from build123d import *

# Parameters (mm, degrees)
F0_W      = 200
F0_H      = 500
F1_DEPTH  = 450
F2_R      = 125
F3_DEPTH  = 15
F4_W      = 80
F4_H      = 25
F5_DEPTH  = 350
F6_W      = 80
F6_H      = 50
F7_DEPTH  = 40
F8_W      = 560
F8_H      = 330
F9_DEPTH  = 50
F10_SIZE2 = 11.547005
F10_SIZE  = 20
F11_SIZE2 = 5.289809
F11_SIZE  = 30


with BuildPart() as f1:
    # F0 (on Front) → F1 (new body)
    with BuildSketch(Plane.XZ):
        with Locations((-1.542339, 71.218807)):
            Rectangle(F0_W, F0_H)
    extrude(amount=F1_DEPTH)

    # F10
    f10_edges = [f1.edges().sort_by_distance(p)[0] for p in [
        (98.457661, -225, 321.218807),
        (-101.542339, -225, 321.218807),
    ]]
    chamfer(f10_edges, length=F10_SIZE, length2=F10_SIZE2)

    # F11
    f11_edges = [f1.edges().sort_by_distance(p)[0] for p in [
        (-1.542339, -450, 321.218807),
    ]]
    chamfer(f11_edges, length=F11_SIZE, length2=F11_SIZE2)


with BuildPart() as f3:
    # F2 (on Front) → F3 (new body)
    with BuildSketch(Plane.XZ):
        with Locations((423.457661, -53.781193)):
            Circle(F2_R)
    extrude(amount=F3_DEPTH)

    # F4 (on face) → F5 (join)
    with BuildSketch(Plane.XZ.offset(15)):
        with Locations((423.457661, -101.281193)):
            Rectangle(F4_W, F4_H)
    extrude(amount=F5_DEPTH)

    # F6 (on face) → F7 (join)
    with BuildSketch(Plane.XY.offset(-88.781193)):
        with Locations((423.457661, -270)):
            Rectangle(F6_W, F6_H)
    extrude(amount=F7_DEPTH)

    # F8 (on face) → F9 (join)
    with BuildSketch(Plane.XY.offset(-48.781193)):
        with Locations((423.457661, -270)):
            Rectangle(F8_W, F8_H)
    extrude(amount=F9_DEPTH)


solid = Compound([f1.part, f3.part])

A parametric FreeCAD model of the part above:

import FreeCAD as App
import Part
import Sketcher
Q = App.Units.Quantity


def edges_at(feature, points):
    """Names of the edges that pass closest to the given points."""
    edges = feature.Shape.Edges
    near = lambda p: min(range(len(edges)), key=lambda i: edges[i].distToShape(Part.Vertex(*p))[0])
    return sorted({f"Edge{near(p) + 1}" for p in points})

doc = App.newDocument("Part")
body = doc.addObject("PartDesign::Body", "Body")

# Sketch on XZ plane
sketch1 = body.newObject("Sketcher::SketchObject", "Sketch")
sketch1.AttachmentSupport = (doc.getObject("XZ_Plane"), [""])
sketch1.MapMode = "FlatFace"
sketch1.addGeometry([
    Part.LineSegment(App.Vector(-102, 321, 0), App.Vector(-102, -179, 0)),
    Part.LineSegment(App.Vector(-102, -179, 0), App.Vector(98, -179, 0)),
    Part.LineSegment(App.Vector(98, -179, 0), App.Vector(98, 321, 0)),
    Part.LineSegment(App.Vector(98, 321, 0), App.Vector(-102, 321, 0)),
], False)
sketch1.addConstraint([
    Sketcher.Constraint("Coincident", 0, 2, 1, 1),
    Sketcher.Constraint("Coincident", 1, 2, 2, 1),
    Sketcher.Constraint("Coincident", 2, 2, 3, 1),
    Sketcher.Constraint("Coincident", 3, 2, 0, 1),
    Sketcher.Constraint("Vertical", 0),
    Sketcher.Constraint("Horizontal", 1),
    Sketcher.Constraint("Vertical", 2),
    Sketcher.Constraint("Horizontal", 3),
    Sketcher.Constraint("DistanceX", 1, 1, 1, 2, Q("200 mm")),
    Sketcher.Constraint("DistanceY", 0, 2, 0, 1, Q("500 mm")),
    Sketcher.Constraint("DistanceX", 0, 2, -1, 1, Q("101.542339 mm")),
    Sketcher.Constraint("DistanceY", 0, 2, -1, 1, Q("178.781193 mm")),
])
pad1 = body.newObject("PartDesign::Pad", "Pad")
pad1.Profile = sketch1
pad1.Length = 450
doc.recompute()

chamfer = body.newObject("PartDesign::Chamfer", "Chamfer")
chamfer.Base = (pad1, edges_at(pad1, [(98.458, -225, 321.219), (-101.542, -225, 321.219)]))
chamfer.ChamferType = "Two distances"
chamfer.Size = 20
chamfer.Size2 = 11.547005
doc.recompute()

chamfer2 = body.newObject("PartDesign::Chamfer", "Chamfer001")
chamfer2.Base = (chamfer, edges_at(chamfer, [(-1.542, -450, 321.219)]))
chamfer2.ChamferType = "Two distances"
chamfer2.Size = 30
chamfer2.Size2 = 5.289809
body2 = doc.addObject("PartDesign::Body", "Body001")

# Sketch on XZ plane
sketch2 = body2.newObject("Sketcher::SketchObject", "Sketch001")
sketch2.AttachmentSupport = (doc.getObject("XZ_Plane001"), [""])
sketch2.MapMode = "FlatFace"
sketch2.addGeometry(Part.Circle(App.Vector(423, -54, 0), App.Vector(0, 0, 1), 125), False)
sketch2.addConstraint([
    Sketcher.Constraint("Diameter", 0, Q("250 mm")),
    Sketcher.Constraint("DistanceX", -1, 1, 0, 3, Q("423.457661 mm")),
    Sketcher.Constraint("DistanceY", 0, 3, -1, 1, Q("53.781193 mm")),
])
pad2 = body2.newObject("PartDesign::Pad", "Pad001")
pad2.Profile = sketch2
pad2.Length = 15

# Sketch on XZ plane
sketch3 = body2.newObject("Sketcher::SketchObject", "Sketch002")
sketch3.AttachmentSupport = (doc.getObject("XZ_Plane001"), [""])
sketch3.MapMode = "FlatFace"
sketch3.AttachmentOffset = App.Placement(App.Vector(0, 0, 15), App.Rotation())
sketch3.addGeometry([
    Part.LineSegment(App.Vector(383, -89, 0), App.Vector(383, -114, 0)),
    Part.LineSegment(App.Vector(383, -114, 0), App.Vector(463, -114, 0)),
    Part.LineSegment(App.Vector(463, -114, 0), App.Vector(463, -89, 0)),
    Part.LineSegment(App.Vector(463, -89, 0), App.Vector(383, -89, 0)),
], False)
sketch3.addConstraint([
    Sketcher.Constraint("Coincident", 0, 2, 1, 1),
    Sketcher.Constraint("Coincident", 1, 2, 2, 1),
    Sketcher.Constraint("Coincident", 2, 2, 3, 1),
    Sketcher.Constraint("Coincident", 3, 2, 0, 1),
    Sketcher.Constraint("Vertical", 0),
    Sketcher.Constraint("Horizontal", 1),
    Sketcher.Constraint("Vertical", 2),
    Sketcher.Constraint("Horizontal", 3),
    Sketcher.Constraint("DistanceX", 1, 1, 1, 2, Q("80 mm")),
    Sketcher.Constraint("DistanceY", 0, 2, 0, 1, Q("25 mm")),
    Sketcher.Constraint("DistanceX", -1, 1, 0, 2, Q("383.457661 mm")),
    Sketcher.Constraint("DistanceY", 0, 2, -1, 1, Q("113.781193 mm")),
])
pad3 = body2.newObject("PartDesign::Pad", "Pad002")
pad3.Profile = sketch3
pad3.Length = 350

# Sketch on XY plane
sketch4 = body2.newObject("Sketcher::SketchObject", "Sketch003")
sketch4.AttachmentSupport = (doc.getObject("XY_Plane001"), [""])
sketch4.MapMode = "FlatFace"
sketch4.AttachmentOffset = App.Placement(App.Vector(0, 0, -88.781193), App.Rotation())
sketch4.addGeometry([
    Part.LineSegment(App.Vector(383, -245, 0), App.Vector(383, -295, 0)),
    Part.LineSegment(App.Vector(383, -295, 0), App.Vector(463, -295, 0)),
    Part.LineSegment(App.Vector(463, -295, 0), App.Vector(463, -245, 0)),
    Part.LineSegment(App.Vector(463, -245, 0), App.Vector(383, -245, 0)),
], False)
sketch4.addConstraint([
    Sketcher.Constraint("Coincident", 0, 2, 1, 1),
    Sketcher.Constraint("Coincident", 1, 2, 2, 1),
    Sketcher.Constraint("Coincident", 2, 2, 3, 1),
    Sketcher.Constraint("Coincident", 3, 2, 0, 1),
    Sketcher.Constraint("Vertical", 0),
    Sketcher.Constraint("Horizontal", 1),
    Sketcher.Constraint("Vertical", 2),
    Sketcher.Constraint("Horizontal", 3),
    Sketcher.Constraint("DistanceX", 1, 1, 1, 2, Q("80 mm")),
    Sketcher.Constraint("DistanceY", 0, 2, 0, 1, Q("50 mm")),
    Sketcher.Constraint("DistanceY", 0, 2, -1, 1, Q("295 mm")),
    Sketcher.Constraint("DistanceX", -1, 1, 0, 2, Q("383.457661 mm")),
])
pad4 = body2.newObject("PartDesign::Pad", "Pad003")
pad4.Profile = sketch4
pad4.Length = 40

# Sketch on XY plane
sketch5 = body2.newObject("Sketcher::SketchObject", "Sketch004")
sketch5.AttachmentSupport = (doc.getObject("XY_Plane001"), [""])
sketch5.MapMode = "FlatFace"
sketch5.AttachmentOffset = App.Placement(App.Vector(0, 0, -48.781193), App.Rotation())
sketch5.addGeometry([
    Part.LineSegment(App.Vector(143, -105, 0), App.Vector(143, -435, 0)),
    Part.LineSegment(App.Vector(143, -435, 0), App.Vector(703, -435, 0)),
    Part.LineSegment(App.Vector(703, -435, 0), App.Vector(703, -105, 0)),
    Part.LineSegment(App.Vector(703, -105, 0), App.Vector(143, -105, 0)),
], False)
sketch5.addConstraint([
    Sketcher.Constraint("Coincident", 0, 2, 1, 1),
    Sketcher.Constraint("Coincident", 1, 2, 2, 1),
    Sketcher.Constraint("Coincident", 2, 2, 3, 1),
    Sketcher.Constraint("Coincident", 3, 2, 0, 1),
    Sketcher.Constraint("Vertical", 0),
    Sketcher.Constraint("Horizontal", 1),
    Sketcher.Constraint("Vertical", 2),
    Sketcher.Constraint("Horizontal", 3),
    Sketcher.Constraint("DistanceX", 1, 1, 1, 2, Q("560 mm")),
    Sketcher.Constraint("DistanceY", 0, 2, 0, 1, Q("330 mm")),
    Sketcher.Constraint("DistanceY", 0, 2, -1, 1, Q("435 mm")),
    Sketcher.Constraint("DistanceX", -1, 1, 0, 2, Q("143.457661 mm")),
])
pad5 = body2.newObject("PartDesign::Pad", "Pad004")
pad5.Profile = sketch5
pad5.Length = 50

doc.recompute()
